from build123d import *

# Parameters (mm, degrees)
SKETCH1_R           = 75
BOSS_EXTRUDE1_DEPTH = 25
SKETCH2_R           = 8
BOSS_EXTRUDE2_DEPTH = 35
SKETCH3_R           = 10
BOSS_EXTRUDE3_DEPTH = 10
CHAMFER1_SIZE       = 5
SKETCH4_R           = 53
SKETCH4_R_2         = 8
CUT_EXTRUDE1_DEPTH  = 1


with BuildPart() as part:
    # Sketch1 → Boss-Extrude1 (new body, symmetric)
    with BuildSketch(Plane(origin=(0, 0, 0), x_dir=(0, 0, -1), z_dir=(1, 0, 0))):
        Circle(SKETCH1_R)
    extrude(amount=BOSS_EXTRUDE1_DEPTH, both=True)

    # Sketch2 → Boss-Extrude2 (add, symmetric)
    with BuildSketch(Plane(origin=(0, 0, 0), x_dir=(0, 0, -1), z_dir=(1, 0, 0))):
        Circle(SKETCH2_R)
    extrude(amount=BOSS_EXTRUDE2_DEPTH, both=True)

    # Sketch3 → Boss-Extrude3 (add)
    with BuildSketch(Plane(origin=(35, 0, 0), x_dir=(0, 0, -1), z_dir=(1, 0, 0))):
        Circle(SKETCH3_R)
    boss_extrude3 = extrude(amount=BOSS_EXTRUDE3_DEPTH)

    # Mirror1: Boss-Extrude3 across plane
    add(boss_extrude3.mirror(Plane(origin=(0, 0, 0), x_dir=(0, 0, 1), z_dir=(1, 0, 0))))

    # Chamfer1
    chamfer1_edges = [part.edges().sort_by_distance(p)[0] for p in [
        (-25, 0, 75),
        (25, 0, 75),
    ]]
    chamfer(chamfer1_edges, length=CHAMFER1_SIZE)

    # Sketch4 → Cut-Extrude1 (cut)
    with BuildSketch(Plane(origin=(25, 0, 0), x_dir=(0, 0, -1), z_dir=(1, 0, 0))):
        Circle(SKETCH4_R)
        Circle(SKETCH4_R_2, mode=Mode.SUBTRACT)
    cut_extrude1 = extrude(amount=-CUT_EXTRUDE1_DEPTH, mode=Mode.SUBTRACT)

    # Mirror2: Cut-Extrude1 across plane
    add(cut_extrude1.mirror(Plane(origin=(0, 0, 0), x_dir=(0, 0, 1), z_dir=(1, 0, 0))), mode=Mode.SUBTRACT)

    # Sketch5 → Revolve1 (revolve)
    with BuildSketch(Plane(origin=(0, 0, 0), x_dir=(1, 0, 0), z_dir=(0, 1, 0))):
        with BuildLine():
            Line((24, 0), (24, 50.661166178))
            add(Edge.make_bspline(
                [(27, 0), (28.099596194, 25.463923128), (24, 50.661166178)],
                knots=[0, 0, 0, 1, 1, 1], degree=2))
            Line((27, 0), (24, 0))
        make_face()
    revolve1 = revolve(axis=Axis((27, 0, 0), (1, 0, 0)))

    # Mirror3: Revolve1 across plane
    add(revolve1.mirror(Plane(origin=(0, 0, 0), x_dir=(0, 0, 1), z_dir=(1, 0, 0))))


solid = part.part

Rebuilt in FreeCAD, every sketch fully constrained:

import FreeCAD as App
import Part
import Sketcher
Q = App.Units.Quantity


def edges_at(feature, points):
    """Names of the edges that pass closest to the given points."""
    edges = feature.Shape.Edges
    near = lambda p: min(range(len(edges)), key=lambda i: edges[i].distToShape(Part.Vertex(*p))[0])
    return sorted({f"Edge{near(p) + 1}" for p in points})

doc = App.newDocument("Part")
params = doc.addObject("Spreadsheet::Sheet", "Params")
for row, (alias, value) in enumerate([
    ("sketch1_diameter", "150 mm"),
    ("pad1_length", "50 mm"),
    ("sketch2_diameter", "16 mm"),
    ("pad2_length", "70 mm"),
    ("sketch3_diameter", "20 mm"),
    ("pad3_length", "10 mm"),
    ("chamfer_size", "5 mm"),
    ("sketch4_diameter", "106 mm"),
    ("sketch4_diameter2", "16 mm"),
    ("pocket1_length", "1 mm"),
    ("revolution_angle", "360 deg"),
], start=1):
    params.set(f"A{row}", alias)
    params.set(f"B{row}", "=" + value)
    params.setAlias(f"B{row}", alias)

body = doc.addObject("PartDesign::Body", "Body")

# Sketch on YZ plane
sketch1 = doc.addObject("Sketcher::SketchObject", "Sketch")
body.addObject(sketch1)
sketch1.AttachmentSupport = (doc.YZ_Plane, [""])
sketch1.MapMode = "FlatFace"
sketch1.addGeometry(Part.Circle(App.Vector(0, 0, 0), App.Vector(0, 0, 1), 75), False)
sketch1.addConstraint([
    Sketcher.Constraint("Coincident", 0, 3, -1, 1),
    Sketcher.Constraint("Diameter", 0, Q("150 mm")),
])
sketch1.setExpression("Constraints[1]", "Params.sketch1_diameter")
pad1 = doc.addObject("PartDesign::Pad", "Pad")
body.addObject(pad1)
pad1.Profile = sketch1
pad1.setExpression("Length", "Params.pad1_length")
pad1.Midplane = True

# Sketch on YZ plane
sketch2 = doc.addObject("Sketcher::SketchObject", "Sketch001")
body.addObject(sketch2)
sketch2.AttachmentSupport = (doc.YZ_Plane, [""])
sketch2.MapMode = "FlatFace"
sketch2.addGeometry(Part.Circle(App.Vector(0, 0, 0), App.Vector(0, 0, 1), 8), False)
sketch2.addConstraint([
    Sketcher.Constraint("Coincident", 0, 3, -1, 1),
    Sketcher.Constraint("Diameter", 0, Q("16 mm")),
])
sketch2.setExpression("Constraints[1]", "Params.sketch2_diameter")
pad2 = doc.addObject("PartDesign::Pad", "Pad001")
body.addObject(pad2)
pad2.Profile = sketch2
pad2.setExpression("Length", "Params.pad2_length")
pad2.Midplane = True

# Sketch on YZ plane
sketch3 = doc.addObject("Sketcher::SketchObject", "Sketch002")
body.addObject(sketch3)
sketch3.AttachmentSupport = (doc.YZ_Plane, [""])
sketch3.MapMode = "FlatFace"
sketch3.AttachmentOffset = App.Placement(App.Vector(0, 0, 35), App.Rotation())
sketch3.addGeometry(Part.Circle(App.Vector(0, 0, 0), App.Vector(0, 0, 1), 10), False)
sketch3.addConstraint([
    Sketcher.Constraint("Coincident", 0, 3, -1, 1),
    Sketcher.Constraint("Diameter", 0, Q("20 mm")),
])
sketch3.setExpression("Constraints[1]", "Params.sketch3_diameter")
pad3 = doc.addObject("PartDesign::Pad", "Pad002")
body.addObject(pad3)
pad3.Profile = sketch3
pad3.setExpression("Length", "Params.pad3_length")
doc.recompute()

mirrored = doc.addObject("PartDesign::Mirrored", "Mirrored")
body.addObject(mirrored)
mirrored.Originals = [pad3]
mirrored.MirrorPlane = (doc.YZ_Plane, [""])
body.Tip = mirrored
doc.recompute()

chamfer = doc.addObject("PartDesign::Chamfer", "Chamfer")
body.addObject(chamfer)
chamfer.Base = (mirrored, edges_at(mirrored, [(-25, 0, 75), (25, 0, 75)]))
chamfer.setExpression("Size", "Params.chamfer_size")

# Sketch on YZ plane
sketch4 = doc.addObject("Sketcher::SketchObject", "Sketch003")
body.addObject(sketch4)
sketch4.AttachmentSupport = (doc.YZ_Plane, [""])
sketch4.MapMode = "FlatFace"
sketch4.AttachmentOffset = App.Placement(App.Vector(0, 0, 25), App.Rotation())
sketch4.addGeometry([
    Part.Circle(App.Vector(0, 0, 0), App.Vector(0, 0, 1), 53),
    Part.Circle(App.Vector(0, 0, 0), App.Vector(0, 0, 1), 8),
], False)
sketch4.addConstraint([
    Sketcher.Constraint("Coincident", 0, 3, -1, 1),
    Sketcher.Constraint("Coincident", 1, 3, -1, 1),
    Sketcher.Constraint("Diameter", 0, Q("106 mm")),
    Sketcher.Constraint("Diameter", 1, Q("16 mm")),
])
sketch4.setExpression("Constraints[2]", "Params.sketch4_diameter")
sketch4.setExpression("Constraints[3]", "Params.sketch4_diameter2")
pocket1 = doc.addObject("PartDesign::Pocket", "Pocket")
body.addObject(pocket1)
pocket1.Profile = sketch4
pocket1.setExpression("Length", "Params.pocket1_length")
doc.recompute()

mirrored2 = doc.addObject("PartDesign::Mirrored", "Mirrored001")
body.addObject(mirrored2)
mirrored2.Originals = [pocket1]
mirrored2.MirrorPlane = (doc.YZ_Plane, [""])
body.Tip = mirrored2

# Sketch on XZ plane
sketch5 = doc.addObject("Sketcher::SketchObject", "Sketch004")
body.addObject(sketch5)
sketch5.AttachmentSupport = (doc.XZ_Plane, [""])
sketch5.MapMode = "FlatFace"
sketch5.addGeometry([
    Part.LineSegment(App.Vector(24, -50.661166, 0), App.Vector(24, 0, 0)),
    Part.LineSegment(App.Vector(24, 0, 0), App.Vector(27, 0, 0)),
    Part.BSplineCurve([App.Vector(27, 0, 0), App.Vector(28.099596, -25.463923, 0), App.Vector(24, -50.661166, 0)], [3, 3], [0, 1], False, 2, [1, 1, 1], False),
], False)
sketch5.addConstraint([
    Sketcher.Constraint("Block", 2),
    Sketcher.Constraint("Coincident", 0, 2, 1, 1),
    Sketcher.Constraint("Coincident", 1, 2, 2, 1),
    Sketcher.Constraint("Coincident", 2, 2, 0, 1),
    Sketcher.Constraint("Vertical", 0),
    Sketcher.Constraint("Horizontal", 1),
])
revolution = doc.addObject("PartDesign::Revolution", "Revolution")
body.addObject(revolution)
revolution.Profile = sketch5
revolution.ReferenceAxis = (sketch5, ["H_Axis"])
revolution.setExpression("Angle", "Params.revolution_angle")
doc.recompute()

mirrored3 = doc.addObject("PartDesign::Mirrored", "Mirrored002")
body.addObject(mirrored3)
mirrored3.Originals = [revolution]
mirrored3.MirrorPlane = (doc.YZ_Plane, [""])
body.Tip = mirrored3

doc.recompute()
